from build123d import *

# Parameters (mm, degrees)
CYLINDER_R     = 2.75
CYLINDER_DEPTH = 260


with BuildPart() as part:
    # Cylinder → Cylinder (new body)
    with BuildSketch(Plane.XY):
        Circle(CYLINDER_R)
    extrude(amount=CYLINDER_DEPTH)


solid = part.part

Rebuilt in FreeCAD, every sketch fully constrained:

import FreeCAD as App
import Part
import Sketcher
Q = App.Units.Quantity

doc = App.newDocument("Part")
params = doc.addObject("Spreadsheet::Sheet", "Params")
for row, (alias, value) in enumerate([
    ("sketch1_diameter", "5.5 mm"),
    ("pad1_length", "260 mm"),
], start=1):
    params.set(f"A{row}", alias)
    params.set(f"B{row}", "=" + value)
    params.setAlias(f"B{row}", alias)

body = doc.addObject("PartDesign::Body", "Body")

# Sketch on XY plane
sketch1 = doc.addObject("Sketcher::SketchObject", "Sketch")
body.addObject(sketch1)
sketch1.AttachmentSupport = (doc.XY_Plane, [""])
sketch1.MapMode = "FlatFace"
sketch1.addGeometry(Part.Circle(App.Vector(0, 0, 0), App.Vector(0, 0, 1), 2.75), False)
sketch1.addConstraint([
    Sketcher.Constraint("Coincident", 0, 3, -1, 1),
    Sketcher.Constraint("Diameter", 0, Q("5.5 mm")),
])
sketch1.setExpression("Constraints[1]", "Params.sketch1_diameter")
pad1 = doc.addObject("PartDesign::Pad", "Pad")
body.addObject(pad1)
pad1.Profile = sketch1
pad1.setExpression("Length", "Params.pad1_length")

doc.recompute()
